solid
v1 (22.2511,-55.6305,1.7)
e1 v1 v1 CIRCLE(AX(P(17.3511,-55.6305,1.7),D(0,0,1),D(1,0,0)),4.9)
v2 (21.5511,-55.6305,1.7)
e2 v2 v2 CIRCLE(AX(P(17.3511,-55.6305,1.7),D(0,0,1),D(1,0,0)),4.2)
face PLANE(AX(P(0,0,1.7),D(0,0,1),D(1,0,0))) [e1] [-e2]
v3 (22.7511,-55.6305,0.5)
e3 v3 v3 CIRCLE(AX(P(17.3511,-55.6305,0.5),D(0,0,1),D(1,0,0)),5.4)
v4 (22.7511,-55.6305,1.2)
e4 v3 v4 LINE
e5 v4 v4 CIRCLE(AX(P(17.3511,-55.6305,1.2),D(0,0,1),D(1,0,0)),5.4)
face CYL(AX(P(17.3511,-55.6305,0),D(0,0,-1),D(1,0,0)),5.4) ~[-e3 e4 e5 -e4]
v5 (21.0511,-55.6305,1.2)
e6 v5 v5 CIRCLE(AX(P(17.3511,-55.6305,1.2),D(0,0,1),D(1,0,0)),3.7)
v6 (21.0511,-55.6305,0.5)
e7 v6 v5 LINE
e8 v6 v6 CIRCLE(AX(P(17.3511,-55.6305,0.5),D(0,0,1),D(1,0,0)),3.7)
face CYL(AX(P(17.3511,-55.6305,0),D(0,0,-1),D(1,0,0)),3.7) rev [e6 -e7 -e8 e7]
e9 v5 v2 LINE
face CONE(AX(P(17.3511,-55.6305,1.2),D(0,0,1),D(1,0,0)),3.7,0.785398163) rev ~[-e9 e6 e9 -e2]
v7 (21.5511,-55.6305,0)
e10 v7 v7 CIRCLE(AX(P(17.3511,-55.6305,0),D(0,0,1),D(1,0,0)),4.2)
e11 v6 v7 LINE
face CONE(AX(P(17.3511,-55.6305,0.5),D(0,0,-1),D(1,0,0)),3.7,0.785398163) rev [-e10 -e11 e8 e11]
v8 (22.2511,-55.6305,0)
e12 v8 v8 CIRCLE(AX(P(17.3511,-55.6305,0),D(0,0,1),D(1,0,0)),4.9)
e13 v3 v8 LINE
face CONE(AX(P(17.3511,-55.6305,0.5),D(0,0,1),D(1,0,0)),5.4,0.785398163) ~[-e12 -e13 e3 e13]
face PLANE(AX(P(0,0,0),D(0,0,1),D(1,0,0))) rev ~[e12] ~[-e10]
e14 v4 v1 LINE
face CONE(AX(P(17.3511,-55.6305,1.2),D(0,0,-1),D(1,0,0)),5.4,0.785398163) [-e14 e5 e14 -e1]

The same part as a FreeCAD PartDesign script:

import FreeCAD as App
import Part
import Sketcher


def edges_at(feature, points):
    """Names of the edges that pass closest to the given points."""
    edges = feature.Shape.Edges
    near = lambda p: min(range(len(edges)), key=lambda i: edges[i].distToShape(Part.Vertex(*p))[0])
    return sorted({f"Edge{near(p) + 1}" for p in points})

doc = App.newDocument("Part")
body = doc.addObject("PartDesign::Body", "Body")

sketch1 = doc.addObject("Sketcher::SketchObject", "Sketch")
body.addObject(sketch1)
sketch1.AttachmentSupport = (doc.XY_Plane, [""])
sketch1.MapMode = "FlatFace"
sketch1.addGeometry(Part.Circle(App.Vector(17.4, -55.6, 0), App.Vector(0, 0, 1), 5.4), False)
sketch1.addGeometry(Part.Circle(App.Vector(17.4, -55.6, 0), App.Vector(0, 0, 1), 3.7), False)
sketch1.addConstraint(Sketcher.Constraint("Coincident", 1, 3, 0, 3))
sketch1.addConstraint(Sketcher.Constraint("Diameter", 0, 10.8))
sketch1.addConstraint(Sketcher.Constraint("Diameter", 1, 7.4))
sketch1.addConstraint(Sketcher.Constraint("DistanceX", -1, 1, 0, 3, 17.351))
sketch1.addConstraint(Sketcher.Constraint("DistanceY", 0, 3, -1, 1, 55.6305))
pad1 = doc.addObject("PartDesign::Pad", "Pad")
body.addObject(pad1)
pad1.Profile = sketch1
pad1.Length = 1.7
doc.recompute()

chamfer = doc.addObject("PartDesign::Chamfer", "Chamfer")
body.addObject(chamfer)
chamfer.Base = (pad1, edges_at(pad1, [
    (13.651, -55.63, 0),
    (11.951, -55.63, 0),
    (11.951, -55.63, 1.7),
    (13.651, -55.63, 1.7),
]))
chamfer.Size = 0.5

doc.recompute()
